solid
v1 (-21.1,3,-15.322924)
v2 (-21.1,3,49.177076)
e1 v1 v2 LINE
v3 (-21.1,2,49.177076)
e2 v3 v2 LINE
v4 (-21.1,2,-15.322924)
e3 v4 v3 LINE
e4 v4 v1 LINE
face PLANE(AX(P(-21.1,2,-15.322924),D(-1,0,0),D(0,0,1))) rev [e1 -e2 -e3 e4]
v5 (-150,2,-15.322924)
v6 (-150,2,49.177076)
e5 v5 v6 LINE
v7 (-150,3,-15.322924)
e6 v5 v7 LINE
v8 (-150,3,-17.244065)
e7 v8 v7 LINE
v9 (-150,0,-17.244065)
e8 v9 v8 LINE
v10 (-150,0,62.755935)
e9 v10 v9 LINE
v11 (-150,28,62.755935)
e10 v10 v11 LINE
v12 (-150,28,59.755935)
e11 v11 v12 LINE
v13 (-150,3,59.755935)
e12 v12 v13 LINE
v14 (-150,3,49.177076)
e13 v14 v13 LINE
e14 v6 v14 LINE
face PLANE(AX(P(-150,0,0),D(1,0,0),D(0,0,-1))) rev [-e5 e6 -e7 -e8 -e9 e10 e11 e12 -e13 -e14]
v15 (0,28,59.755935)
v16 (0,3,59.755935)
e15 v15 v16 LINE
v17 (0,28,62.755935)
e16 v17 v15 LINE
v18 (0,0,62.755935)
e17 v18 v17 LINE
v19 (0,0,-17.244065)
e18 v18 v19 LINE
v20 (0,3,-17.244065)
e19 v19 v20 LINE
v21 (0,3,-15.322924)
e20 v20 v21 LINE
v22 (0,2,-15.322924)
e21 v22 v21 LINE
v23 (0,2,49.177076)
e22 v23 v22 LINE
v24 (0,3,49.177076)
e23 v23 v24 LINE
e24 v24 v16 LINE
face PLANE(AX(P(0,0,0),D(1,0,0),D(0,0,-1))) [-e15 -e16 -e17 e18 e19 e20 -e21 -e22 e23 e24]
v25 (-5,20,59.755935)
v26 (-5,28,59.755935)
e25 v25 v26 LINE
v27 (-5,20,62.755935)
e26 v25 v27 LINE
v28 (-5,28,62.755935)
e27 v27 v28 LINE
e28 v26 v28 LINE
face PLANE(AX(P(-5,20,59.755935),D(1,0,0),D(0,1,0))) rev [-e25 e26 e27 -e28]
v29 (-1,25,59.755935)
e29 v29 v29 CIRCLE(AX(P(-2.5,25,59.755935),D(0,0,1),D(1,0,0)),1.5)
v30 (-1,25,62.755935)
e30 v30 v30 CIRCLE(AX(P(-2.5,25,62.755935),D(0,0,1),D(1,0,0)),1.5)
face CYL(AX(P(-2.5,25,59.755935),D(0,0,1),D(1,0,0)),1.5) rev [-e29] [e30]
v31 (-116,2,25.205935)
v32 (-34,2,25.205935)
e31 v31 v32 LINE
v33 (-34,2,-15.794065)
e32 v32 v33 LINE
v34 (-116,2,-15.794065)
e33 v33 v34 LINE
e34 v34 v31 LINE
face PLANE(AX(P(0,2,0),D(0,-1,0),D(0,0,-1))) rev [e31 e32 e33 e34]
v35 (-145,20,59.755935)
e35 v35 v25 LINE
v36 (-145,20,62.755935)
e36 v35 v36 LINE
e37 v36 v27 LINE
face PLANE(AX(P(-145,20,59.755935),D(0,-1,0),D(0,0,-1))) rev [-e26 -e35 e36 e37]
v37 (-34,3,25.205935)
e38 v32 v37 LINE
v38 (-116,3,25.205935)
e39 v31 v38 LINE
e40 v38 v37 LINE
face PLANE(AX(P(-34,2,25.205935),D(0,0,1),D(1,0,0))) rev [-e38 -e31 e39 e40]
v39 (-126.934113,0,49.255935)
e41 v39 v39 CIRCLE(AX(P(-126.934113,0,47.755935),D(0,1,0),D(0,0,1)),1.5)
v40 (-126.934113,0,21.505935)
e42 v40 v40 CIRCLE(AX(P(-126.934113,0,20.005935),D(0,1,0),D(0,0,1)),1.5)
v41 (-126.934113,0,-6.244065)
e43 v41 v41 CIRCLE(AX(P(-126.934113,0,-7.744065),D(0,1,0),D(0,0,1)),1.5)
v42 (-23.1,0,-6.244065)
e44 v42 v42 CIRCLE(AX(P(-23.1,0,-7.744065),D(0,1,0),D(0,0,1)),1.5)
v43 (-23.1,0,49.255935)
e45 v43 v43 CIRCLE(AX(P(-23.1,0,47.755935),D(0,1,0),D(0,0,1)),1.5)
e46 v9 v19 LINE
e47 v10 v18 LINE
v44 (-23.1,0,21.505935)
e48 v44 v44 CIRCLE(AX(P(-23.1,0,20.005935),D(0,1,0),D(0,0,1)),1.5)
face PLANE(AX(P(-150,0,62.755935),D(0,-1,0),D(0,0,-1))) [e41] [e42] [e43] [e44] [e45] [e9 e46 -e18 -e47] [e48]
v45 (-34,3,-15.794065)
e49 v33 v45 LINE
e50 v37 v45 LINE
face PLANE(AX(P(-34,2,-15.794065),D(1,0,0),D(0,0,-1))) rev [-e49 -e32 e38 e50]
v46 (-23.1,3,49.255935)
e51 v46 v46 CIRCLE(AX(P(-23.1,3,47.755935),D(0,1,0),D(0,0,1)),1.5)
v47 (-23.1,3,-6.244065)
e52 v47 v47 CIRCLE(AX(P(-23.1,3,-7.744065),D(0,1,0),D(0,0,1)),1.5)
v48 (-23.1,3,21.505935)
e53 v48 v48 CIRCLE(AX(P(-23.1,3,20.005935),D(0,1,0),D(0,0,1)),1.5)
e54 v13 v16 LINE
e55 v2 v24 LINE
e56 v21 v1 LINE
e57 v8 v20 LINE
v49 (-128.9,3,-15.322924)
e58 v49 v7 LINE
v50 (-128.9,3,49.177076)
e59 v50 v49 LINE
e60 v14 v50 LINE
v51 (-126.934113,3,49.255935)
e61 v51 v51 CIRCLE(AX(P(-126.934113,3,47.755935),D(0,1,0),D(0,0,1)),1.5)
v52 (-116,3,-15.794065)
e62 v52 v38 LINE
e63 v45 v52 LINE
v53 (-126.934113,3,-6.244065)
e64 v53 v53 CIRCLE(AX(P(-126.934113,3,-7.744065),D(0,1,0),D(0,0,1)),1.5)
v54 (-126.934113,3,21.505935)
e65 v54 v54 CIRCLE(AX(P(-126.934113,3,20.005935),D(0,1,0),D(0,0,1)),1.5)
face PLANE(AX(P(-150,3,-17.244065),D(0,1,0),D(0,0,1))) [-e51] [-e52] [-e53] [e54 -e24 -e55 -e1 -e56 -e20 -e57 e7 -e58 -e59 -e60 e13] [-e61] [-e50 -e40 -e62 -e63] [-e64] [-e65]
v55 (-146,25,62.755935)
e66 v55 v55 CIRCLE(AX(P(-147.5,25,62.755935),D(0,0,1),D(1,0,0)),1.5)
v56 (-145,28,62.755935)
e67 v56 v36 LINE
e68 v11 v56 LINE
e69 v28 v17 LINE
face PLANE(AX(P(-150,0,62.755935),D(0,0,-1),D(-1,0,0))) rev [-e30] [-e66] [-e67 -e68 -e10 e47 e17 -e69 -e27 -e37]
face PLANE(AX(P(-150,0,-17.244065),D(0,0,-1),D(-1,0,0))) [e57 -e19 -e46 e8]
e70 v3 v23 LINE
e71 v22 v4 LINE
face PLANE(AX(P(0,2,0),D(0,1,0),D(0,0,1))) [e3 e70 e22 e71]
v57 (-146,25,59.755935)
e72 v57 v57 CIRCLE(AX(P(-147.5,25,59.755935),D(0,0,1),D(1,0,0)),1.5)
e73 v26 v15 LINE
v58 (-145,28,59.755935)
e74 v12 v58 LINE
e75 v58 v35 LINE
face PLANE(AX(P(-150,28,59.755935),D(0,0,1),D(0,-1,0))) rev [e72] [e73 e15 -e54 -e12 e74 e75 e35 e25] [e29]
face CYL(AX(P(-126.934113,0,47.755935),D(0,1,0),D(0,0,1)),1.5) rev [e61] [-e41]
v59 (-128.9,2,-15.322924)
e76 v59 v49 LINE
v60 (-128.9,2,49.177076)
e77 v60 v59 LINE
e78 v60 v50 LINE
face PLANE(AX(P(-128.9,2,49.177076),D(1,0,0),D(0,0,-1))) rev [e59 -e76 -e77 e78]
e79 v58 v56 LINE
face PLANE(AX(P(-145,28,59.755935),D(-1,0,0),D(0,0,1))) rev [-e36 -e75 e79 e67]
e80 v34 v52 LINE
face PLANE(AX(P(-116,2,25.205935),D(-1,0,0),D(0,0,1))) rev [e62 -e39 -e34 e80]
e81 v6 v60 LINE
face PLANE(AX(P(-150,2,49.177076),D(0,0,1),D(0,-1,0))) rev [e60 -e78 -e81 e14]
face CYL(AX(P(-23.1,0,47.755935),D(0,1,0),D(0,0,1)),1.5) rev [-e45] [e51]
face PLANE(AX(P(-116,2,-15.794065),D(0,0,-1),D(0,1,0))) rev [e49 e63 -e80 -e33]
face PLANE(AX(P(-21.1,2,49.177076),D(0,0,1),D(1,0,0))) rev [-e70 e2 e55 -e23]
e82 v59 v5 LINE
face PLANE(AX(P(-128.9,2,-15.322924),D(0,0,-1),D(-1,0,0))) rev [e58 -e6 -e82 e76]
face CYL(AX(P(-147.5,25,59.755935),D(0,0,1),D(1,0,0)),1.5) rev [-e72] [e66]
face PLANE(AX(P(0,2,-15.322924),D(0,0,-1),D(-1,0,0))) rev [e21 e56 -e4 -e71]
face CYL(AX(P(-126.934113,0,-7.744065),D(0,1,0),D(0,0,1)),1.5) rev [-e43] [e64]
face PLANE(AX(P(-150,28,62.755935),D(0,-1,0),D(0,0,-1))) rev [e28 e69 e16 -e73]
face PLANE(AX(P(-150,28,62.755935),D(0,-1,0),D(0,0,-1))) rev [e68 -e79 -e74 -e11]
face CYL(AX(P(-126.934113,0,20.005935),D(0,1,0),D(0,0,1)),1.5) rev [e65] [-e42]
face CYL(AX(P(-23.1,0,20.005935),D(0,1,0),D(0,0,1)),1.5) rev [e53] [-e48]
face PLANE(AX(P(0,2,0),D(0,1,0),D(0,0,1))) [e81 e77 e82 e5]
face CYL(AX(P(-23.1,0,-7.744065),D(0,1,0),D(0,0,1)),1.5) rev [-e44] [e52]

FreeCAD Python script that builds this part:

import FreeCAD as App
import Part
import Sketcher

V = App.Vector
Q = App.Units.Quantity

doc = App.newDocument("Part")
body = doc.addObject("PartDesign::Body", "Body")

# Sketch on YZ plane
sketch1 = doc.addObject("Sketcher::SketchObject", "Sketch")
body.addObject(sketch1)
sketch1.AttachmentSupport = (doc.YZ_Plane, [""])
sketch1.MapMode = "FlatFace"
sketch1.addGeometry(Part.LineSegment(V(28, 62.8, 0), V(0, 62.8, 0)), False)
sketch1.addGeometry(Part.LineSegment(V(0, 62.8, 0), V(0, -17.2, 0)), False)
sketch1.addGeometry(Part.LineSegment(V(0, -17.2, 0), V(3, -17.2, 0)), False)
sketch1.addGeometry(Part.LineSegment(V(3, -17.2, 0), V(3, 59.8, 0)), False)
sketch1.addGeometry(Part.LineSegment(V(3, 59.8, 0), V(28, 59.8, 0)), False)
sketch1.addGeometry(Part.LineSegment(V(28, 59.8, 0), V(28, 62.8, 0)), False)
sketch1.addConstraint(Sketcher.Constraint("Coincident", 0, 2, 1, 1))
sketch1.addConstraint(Sketcher.Constraint("Coincident", 1, 2, 2, 1))
sketch1.addConstraint(Sketcher.Constraint("Coincident", 2, 2, 3, 1))
sketch1.addConstraint(Sketcher.Constraint("Coincident", 3, 2, 4, 1))
sketch1.addConstraint(Sketcher.Constraint("Coincident", 4, 2, 5, 1))
sketch1.addConstraint(Sketcher.Constraint("Coincident", 5, 2, 0, 1))
sketch1.addConstraint(Sketcher.Constraint("Horizontal", 0))
sketch1.addConstraint(Sketcher.Constraint("Vertical", 1))
sketch1.addConstraint(Sketcher.Constraint("Horizontal", 2))
sketch1.addConstraint(Sketcher.Constraint("Vertical", 3))
sketch1.addConstraint(Sketcher.Constraint("Horizontal", 4))
sketch1.addConstraint(Sketcher.Constraint("Vertical", 5))
sketch1.addConstraint(Sketcher.Constraint("PointOnObject", 0, 2, -2))
sketch1.addConstraint(Sketcher.Constraint("Equal", 2, 5))
sketch1.addConstraint(Sketcher.Constraint("DistanceX", 0, 2, 0, 1, Q("28 mm")))
sketch1.addConstraint(Sketcher.Constraint("DistanceX", 2, 1, 2, 2, Q("3 mm")))
sketch1.addConstraint(Sketcher.Constraint("DistanceY", 1, 2, 1, 1, Q("80 mm")))
sketch1.addConstraint(Sketcher.Constraint("DistanceY", -1, 1, 0, 2, Q("62.755935 mm")))
pad1 = doc.addObject("PartDesign::Pad", "Pad")
body.addObject(pad1)
pad1.Profile = sketch1
pad1.Length = 150
pad1.Reversed = True

# Sketch on XZ plane
sketch2 = doc.addObject("Sketcher::SketchObject", "Sketch001")
body.addObject(sketch2)
sketch2.AttachmentSupport = (doc.XZ_Plane, [""])
sketch2.MapMode = "FlatFace"
sketch2.AttachmentOffset = App.Placement(V(0, 0, -3), App.Rotation())
sketch2.addGeometry(Part.LineSegment(V(-150, -15, 0), V(-150, 49, 0)), False)
sketch2.addGeometry(Part.LineSegment(V(-150, 49, 0), V(-129, 49, 0)), False)
sketch2.addGeometry(Part.LineSegment(V(-129, 49, 0), V(-129, -15, 0)), False)
sketch2.addGeometry(Part.LineSegment(V(-129, -15, 0), V(-150, -15, 0)), False)
sketch2.addGeometry(Part.LineSegment(V(-21, -15, 0), V(-21, 49, 0)), False)
sketch2.addGeometry(Part.LineSegment(V(-21, 49, 0), V(0, 49, 0)), False)
sketch2.addGeometry(Part.LineSegment(V(0, 49, 0), V(0, -15, 0)), False)
sketch2.addGeometry(Part.LineSegment(V(0, -15, 0), V(-21, -15, 0)), False)
sketch2.addConstraint(Sketcher.Constraint("Coincident", 0, 2, 1, 1))
sketch2.addConstraint(Sketcher.Constraint("Coincident", 1, 2, 2, 1))
sketch2.addConstraint(Sketcher.Constraint("Coincident", 2, 2, 3, 1))
sketch2.addConstraint(Sketcher.Constraint("Coincident", 3, 2, 0, 1))
sketch2.addConstraint(Sketcher.Constraint("Coincident", 4, 2, 5, 1))
sketch2.addConstraint(Sketcher.Constraint("Coincident", 5, 2, 6, 1))
sketch2.addConstraint(Sketcher.Constraint("Coincident", 6, 2, 7, 1))
sketch2.addConstraint(Sketcher.Constraint("Coincident", 7, 2, 4, 1))
sketch2.addConstraint(Sketcher.Constraint("Vertical", 0))
sketch2.addConstraint(Sketcher.Constraint("Horizontal", 1))
sketch2.addConstraint(Sketcher.Constraint("Vertical", 2))
sketch2.addConstraint(Sketcher.Constraint("Horizontal", 3))
sketch2.addConstraint(Sketcher.Constraint("Vertical", 4))
sketch2.addConstraint(Sketcher.Constraint("Horizontal", 5))
sketch2.addConstraint(Sketcher.Constraint("Vertical", 6))
sketch2.addConstraint(Sketcher.Constraint("Horizontal", 7))
sketch2.addConstraint(Sketcher.Constraint("PointOnObject", 5, 2, -2))
sketch2.addConstraint(Sketcher.Constraint("Horizontal", 1, 2, 4, 2))
sketch2.addConstraint(Sketcher.Constraint("Horizontal", 3, 2, 6, 2))
sketch2.addConstraint(Sketcher.Constraint("Equal", 3, 5))
sketch2.addConstraint(Sketcher.Constraint("DistanceX", 1, 1, 1, 2, Q("21.1 mm")))
sketch2.addConstraint(Sketcher.Constraint("DistanceY", 0, 1, 0, 2, Q("64.5 mm")))
sketch2.addConstraint(Sketcher.Constraint("DistanceX", 0, 2, -1, 1, Q("150 mm")))
sketch2.addConstraint(Sketcher.Constraint("DistanceY", -1, 1, 0, 2, Q("49.177076 mm")))
pocket1 = doc.addObject("PartDesign::Pocket", "Pocket")
body.addObject(pocket1)
pocket1.Profile = sketch2
pocket1.Length = 1
pocket1.Reversed = True

# Sketch on XZ plane
sketch3 = doc.addObject("Sketcher::SketchObject", "Sketch002")
body.addObject(sketch3)
sketch3.AttachmentSupport = (doc.XZ_Plane, [""])
sketch3.MapMode = "FlatFace"
sketch3.AttachmentOffset = App.Placement(V(0, 0, -3), App.Rotation())
sketch3.addGeometry(Part.LineSegment(V(-116, -16, 0), V(-116, 25, 0)), False)
sketch3.addGeometry(Part.LineSegment(V(-116, 25, 0), V(-34, 25, 0)), False)
sketch3.addGeometry(Part.LineSegment(V(-34, 25, 0), V(-34, -16, 0)), False)
sketch3.addGeometry(Part.LineSegment(V(-34, -16, 0), V(-116, -16, 0)), False)
sketch3.addConstraint(Sketcher.Constraint("Coincident", 0, 2, 1, 1))
sketch3.addConstraint(Sketcher.Constraint("Coincident", 1, 2, 2, 1))
sketch3.addConstraint(Sketcher.Constraint("Coincident", 2, 2, 3, 1))
sketch3.addConstraint(Sketcher.Constraint("Coincident", 3, 2, 0, 1))
sketch3.addConstraint(Sketcher.Constraint("Vertical", 0))
sketch3.addConstraint(Sketcher.Constraint("Horizontal", 1))
sketch3.addConstraint(Sketcher.Constraint("Vertical", 2))
sketch3.addConstraint(Sketcher.Constraint("Horizontal", 3))
sketch3.addConstraint(Sketcher.Constraint("DistanceX", 1, 1, 1, 2, Q("82 mm")))
sketch3.addConstraint(Sketcher.Constraint("DistanceY", 0, 1, 0, 2, Q("41 mm")))
sketch3.addConstraint(Sketcher.Constraint("DistanceX", 0, 2, -1, 1, Q("116 mm")))
sketch3.addConstraint(Sketcher.Constraint("DistanceY", -1, 1, 0, 2, Q("25.205935 mm")))
pocket2 = doc.addObject("PartDesign::Pocket", "Pocket001")
body.addObject(pocket2)
pocket2.Profile = sketch3
pocket2.Length = 1
pocket2.Reversed = True

# Sketch on XY plane
sketch4 = doc.addObject("Sketcher::SketchObject", "Sketch003")
body.addObject(sketch4)
sketch4.AttachmentSupport = (doc.XY_Plane, [""])
sketch4.MapMode = "FlatFace"
sketch4.AttachmentOffset = App.Placement(V(0, 0, 62.755935), App.Rotation())
sketch4.addGeometry(Part.LineSegment(V(-145, 28, 0), V(-145, 20, 0)), False)
sketch4.addGeometry(Part.LineSegment(V(-145, 20, 0), V(-5, 20, 0)), False)
sketch4.addGeometry(Part.LineSegment(V(-5, 20, 0), V(-5, 28, 0)), False)
sketch4.addGeometry(Part.LineSegment(V(-5, 28, 0), V(-145, 28, 0)), False)
sketch4.addConstraint(Sketcher.Constraint("Coincident", 0, 2, 1, 1))
sketch4.addConstraint(Sketcher.Constraint("Coincident", 1, 2, 2, 1))
sketch4.addConstraint(Sketcher.Constraint("Coincident", 2, 2, 3, 1))
sketch4.addConstraint(Sketcher.Constraint("Coincident", 3, 2, 0, 1))
sketch4.addConstraint(Sketcher.Constraint("Vertical", 0))
sketch4.addConstraint(Sketcher.Constraint("Horizontal", 1))
sketch4.addConstraint(Sketcher.Constraint("Vertical", 2))
sketch4.addConstraint(Sketcher.Constraint("Horizontal", 3))
sketch4.addConstraint(Sketcher.Constraint("DistanceX", 1, 1, 1, 2, Q("140 mm")))
sketch4.addConstraint(Sketcher.Constraint("DistanceY", 0, 2, 0, 1, Q("8 mm")))
sketch4.addConstraint(Sketcher.Constraint("DistanceX", 0, 2, -1, 1, Q("145 mm")))
sketch4.addConstraint(Sketcher.Constraint("DistanceY", -1, 1, 0, 2, Q("20 mm")))
pocket3 = doc.addObject("PartDesign::Pocket", "Pocket002")
body.addObject(pocket3)
pocket3.Profile = sketch4
pocket3.Length = 3

# Sketch on XY plane
sketch5 = doc.addObject("Sketcher::SketchObject", "Sketch004")
body.addObject(sketch5)
sketch5.AttachmentSupport = (doc.XY_Plane, [""])
sketch5.MapMode = "FlatFace"
sketch5.AttachmentOffset = App.Placement(V(0, 0, 62.755935), App.Rotation())
sketch5.addGeometry(Part.Circle(V(-2.5, 25, 0), V(0, 0, 1), 1.5), False)
sketch5.addGeometry(Part.Circle(V(-147.5, 25, 0), V(0, 0, 1), 1.5), False)
sketch5.addConstraint(Sketcher.Constraint("Equal", 0, 1))
sketch5.addConstraint(Sketcher.Constraint("Horizontal", 0, 3, 1, 3))
sketch5.addConstraint(Sketcher.Constraint("Diameter", 0, Q("3 mm")))
sketch5.addConstraint(Sketcher.Constraint("DistanceY", -1, 1, 0, 3, Q("25 mm")))
sketch5.addConstraint(Sketcher.Constraint("DistanceX", 1, 3, 0, 3, Q("145 mm")))
sketch5.addConstraint(Sketcher.Constraint("DistanceX", 0, 3, -1, 1, Q("2.5 mm")))
pocket4 = doc.addObject("PartDesign::Pocket", "Pocket003")
body.addObject(pocket4)
pocket4.Profile = sketch5
pocket4.Length = 3

# Sketch on XZ plane
sketch6 = doc.addObject("Sketcher::SketchObject", "Sketch005")
body.addObject(sketch6)
sketch6.AttachmentSupport = (doc.XZ_Plane, [""])
sketch6.MapMode = "FlatFace"
sketch6.AttachmentOffset = App.Placement(V(0, 0, -3), App.Rotation())
sketch6.addGeometry(Part.Circle(V(-23.1, 47.8, 0), V(0, 0, 1), 1.5), False)
sketch6.addGeometry(Part.Circle(V(-23.1, 20, 0), V(0, 0, 1), 1.5), False)
sketch6.addGeometry(Part.Circle(V(-23.1, -7.7, 0), V(0, 0, 1), 1.5), False)
sketch6.addGeometry(Part.Circle(V(-126.9, 47.8, 0), V(0, 0, 1), 1.5), False)
sketch6.addGeometry(Part.Circle(V(-126.9, 20, 0), V(0, 0, 1), 1.5), False)
sketch6.addGeometry(Part.Circle(V(-126.9, -7.7, 0), V(0, 0, 1), 1.5), False)
sketch6.addConstraint(Sketcher.Constraint("Equal", 0, 1))
sketch6.addConstraint(Sketcher.Constraint("Equal", 1, 2))
sketch6.addConstraint(Sketcher.Constraint("Equal", 2, 3))
sketch6.addConstraint(Sketcher.Constraint("Equal", 3, 4))
sketch6.addConstraint(Sketcher.Constraint("Equal", 4, 5))
sketch6.addConstraint(Sketcher.Constraint("Horizontal", 0, 3, 3, 3))
sketch6.addConstraint(Sketcher.Constraint("Horizontal", 1, 3, 4, 3))
sketch6.addConstraint(Sketcher.Constraint("Horizontal", 2, 3, 5, 3))
sketch6.addConstraint(Sketcher.Constraint("Vertical", 0, 3, 1, 3))
sketch6.addConstraint(Sketcher.Constraint("Vertical", 1, 3, 2, 3))
sketch6.addConstraint(Sketcher.Constraint("Vertical", 3, 3, 4, 3))
sketch6.addConstraint(Sketcher.Constraint("Vertical", 4, 3, 5, 3))
sketch6.addConstraint(Sketcher.Constraint("Diameter", 0, Q("3 mm")))
sketch6.addConstraint(Sketcher.Constraint("DistanceX", 0, 3, -1, 1, Q("23.1 mm")))
sketch6.addConstraint(Sketcher.Constraint("DistanceY", 2, 3, 0, 3, Q("55.5 mm")))
sketch6.addConstraint(Sketcher.Constraint("DistanceY", 1, 3, 0, 3, Q("27.75 mm")))
sketch6.addConstraint(Sketcher.Constraint("DistanceY", -1, 1, 0, 3, Q("47.755935 mm")))
sketch6.addConstraint(Sketcher.Constraint("DistanceX", 3, 3, -1, 1, Q("126.934113 mm")))
pocket5 = doc.addObject("PartDesign::Pocket", "Pocket004")
body.addObject(pocket5)
pocket5.Profile = sketch6
pocket5.Length = 3
pocket5.Reversed = True

doc.recompute()
